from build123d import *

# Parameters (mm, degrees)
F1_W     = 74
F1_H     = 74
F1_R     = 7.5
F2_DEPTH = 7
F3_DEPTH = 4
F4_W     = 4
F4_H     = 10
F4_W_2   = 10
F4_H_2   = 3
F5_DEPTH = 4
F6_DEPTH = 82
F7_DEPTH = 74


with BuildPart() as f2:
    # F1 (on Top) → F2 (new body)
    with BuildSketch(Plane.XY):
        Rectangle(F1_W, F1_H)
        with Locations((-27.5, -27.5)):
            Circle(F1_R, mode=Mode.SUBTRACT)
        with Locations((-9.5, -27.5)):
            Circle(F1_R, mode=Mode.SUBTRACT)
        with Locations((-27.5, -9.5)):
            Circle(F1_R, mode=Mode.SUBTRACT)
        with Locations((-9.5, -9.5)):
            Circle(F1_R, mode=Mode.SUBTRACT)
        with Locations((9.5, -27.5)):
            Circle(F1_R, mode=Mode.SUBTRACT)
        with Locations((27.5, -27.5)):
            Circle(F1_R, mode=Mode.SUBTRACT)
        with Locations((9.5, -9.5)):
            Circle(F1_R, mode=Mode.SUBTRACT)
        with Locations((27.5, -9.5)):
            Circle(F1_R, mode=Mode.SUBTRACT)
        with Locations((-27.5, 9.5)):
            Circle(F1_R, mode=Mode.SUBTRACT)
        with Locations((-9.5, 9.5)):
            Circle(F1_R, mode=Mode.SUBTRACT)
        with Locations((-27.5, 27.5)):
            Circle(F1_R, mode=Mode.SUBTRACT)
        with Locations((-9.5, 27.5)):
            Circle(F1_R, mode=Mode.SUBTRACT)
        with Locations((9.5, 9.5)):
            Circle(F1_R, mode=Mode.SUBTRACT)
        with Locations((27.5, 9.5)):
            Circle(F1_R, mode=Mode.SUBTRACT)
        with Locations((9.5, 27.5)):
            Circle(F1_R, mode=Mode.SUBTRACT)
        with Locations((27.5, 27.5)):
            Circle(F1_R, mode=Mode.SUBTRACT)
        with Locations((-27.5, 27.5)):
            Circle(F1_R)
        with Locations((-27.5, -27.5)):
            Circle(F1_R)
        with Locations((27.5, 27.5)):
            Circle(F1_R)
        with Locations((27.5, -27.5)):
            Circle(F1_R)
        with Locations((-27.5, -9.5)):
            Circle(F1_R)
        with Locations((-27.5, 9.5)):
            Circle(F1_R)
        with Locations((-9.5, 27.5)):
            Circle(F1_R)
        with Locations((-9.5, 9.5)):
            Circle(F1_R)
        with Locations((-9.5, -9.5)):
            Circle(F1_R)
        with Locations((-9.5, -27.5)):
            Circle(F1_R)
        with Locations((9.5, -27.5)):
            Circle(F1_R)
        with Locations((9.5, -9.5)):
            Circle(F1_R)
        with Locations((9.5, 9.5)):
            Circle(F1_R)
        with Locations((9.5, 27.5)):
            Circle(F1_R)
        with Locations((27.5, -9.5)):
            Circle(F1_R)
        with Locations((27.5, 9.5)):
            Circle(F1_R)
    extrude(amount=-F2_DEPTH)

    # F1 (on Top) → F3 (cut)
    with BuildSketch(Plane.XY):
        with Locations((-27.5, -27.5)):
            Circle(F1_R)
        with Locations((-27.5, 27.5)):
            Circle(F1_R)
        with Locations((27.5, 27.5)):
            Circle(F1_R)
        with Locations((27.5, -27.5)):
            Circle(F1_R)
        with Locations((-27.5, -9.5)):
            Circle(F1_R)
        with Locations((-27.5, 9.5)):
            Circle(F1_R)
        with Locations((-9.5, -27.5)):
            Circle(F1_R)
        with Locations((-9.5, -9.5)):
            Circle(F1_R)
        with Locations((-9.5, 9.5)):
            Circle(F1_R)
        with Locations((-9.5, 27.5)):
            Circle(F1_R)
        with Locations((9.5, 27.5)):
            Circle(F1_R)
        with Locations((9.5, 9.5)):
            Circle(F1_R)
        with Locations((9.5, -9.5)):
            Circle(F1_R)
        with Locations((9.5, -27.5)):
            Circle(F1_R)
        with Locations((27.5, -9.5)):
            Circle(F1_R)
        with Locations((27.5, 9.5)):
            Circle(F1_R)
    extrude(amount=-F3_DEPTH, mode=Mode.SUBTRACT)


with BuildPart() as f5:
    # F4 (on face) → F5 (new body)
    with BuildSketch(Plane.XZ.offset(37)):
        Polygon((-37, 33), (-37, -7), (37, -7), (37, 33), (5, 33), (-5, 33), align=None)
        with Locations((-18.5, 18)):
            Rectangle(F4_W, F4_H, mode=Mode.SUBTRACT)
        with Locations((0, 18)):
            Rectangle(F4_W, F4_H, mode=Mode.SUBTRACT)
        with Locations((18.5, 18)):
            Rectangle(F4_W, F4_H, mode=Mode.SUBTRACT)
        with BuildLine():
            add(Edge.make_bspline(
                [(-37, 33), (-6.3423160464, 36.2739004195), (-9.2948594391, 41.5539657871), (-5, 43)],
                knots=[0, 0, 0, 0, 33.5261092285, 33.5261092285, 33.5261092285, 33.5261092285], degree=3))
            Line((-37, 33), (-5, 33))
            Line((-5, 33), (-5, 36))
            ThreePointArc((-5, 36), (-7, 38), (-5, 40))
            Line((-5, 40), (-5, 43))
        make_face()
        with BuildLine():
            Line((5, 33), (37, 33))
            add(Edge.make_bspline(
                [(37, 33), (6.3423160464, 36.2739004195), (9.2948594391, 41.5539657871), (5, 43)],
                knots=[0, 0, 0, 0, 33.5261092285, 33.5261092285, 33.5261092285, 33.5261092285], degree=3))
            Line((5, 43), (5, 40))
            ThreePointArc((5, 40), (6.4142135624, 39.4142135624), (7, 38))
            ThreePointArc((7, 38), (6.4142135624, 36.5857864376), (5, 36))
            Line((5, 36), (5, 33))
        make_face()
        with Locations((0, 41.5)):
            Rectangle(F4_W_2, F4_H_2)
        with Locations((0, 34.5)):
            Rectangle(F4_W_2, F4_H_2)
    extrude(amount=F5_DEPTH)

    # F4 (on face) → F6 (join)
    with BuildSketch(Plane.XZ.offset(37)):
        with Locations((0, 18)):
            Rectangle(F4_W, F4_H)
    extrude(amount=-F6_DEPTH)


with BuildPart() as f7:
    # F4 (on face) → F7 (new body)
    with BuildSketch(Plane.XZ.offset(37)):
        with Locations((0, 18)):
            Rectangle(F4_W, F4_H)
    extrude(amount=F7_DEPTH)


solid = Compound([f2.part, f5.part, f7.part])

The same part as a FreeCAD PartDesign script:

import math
import FreeCAD as App
import Part
import Sketcher
from FreeCAD import Vector
Q = App.Units.Quantity


def add_polygon(sketch, points):
    """Adds a closed chain of lines whose ends are joined by coincident constraints."""
    first, n = sketch.GeometryCount, len(points)
    for a, b in zip(points, points[1:] + points[:1]):
        sketch.addGeometry(Part.LineSegment(App.Vector(*a, 0), App.Vector(*b, 0)), False)
    for i in range(n):
        sketch.addConstraint(Sketcher.Constraint("Coincident", first + i, 2, first + (i + 1) % n, 1))

doc = App.newDocument("Part")
body = doc.addObject("PartDesign::Body", "Body")

sketch1 = body.newObject("Sketcher::SketchObject", "Sketch")
sketch1.AttachmentSupport = (doc.getObject("XY_Plane"), [""])
sketch1.MapMode = "FlatFace"
add_polygon(sketch1, [(-37, 37), (-37, -37), (37, -37), (37, 37)])
sketch1.addConstraint([
    Sketcher.Constraint("Vertical", 0),
    Sketcher.Constraint("Horizontal", 1),
    Sketcher.Constraint("Vertical", 2),
    Sketcher.Constraint("Horizontal", 3),
    Sketcher.Constraint("Symmetric", 0, 2, 2, 2, -1, 1),
    Sketcher.Constraint("Equal", 3, 0),
    Sketcher.Constraint("DistanceX", 1, 1, 1, 2, Q("74 mm")),
])
pad1 = body.newObject("PartDesign::Pad", "Pad")
pad1.Profile = sketch1
pad1.Length = 7
pad1.Reversed = True

sketch2 = body.newObject("Sketcher::SketchObject", "Sketch001")
sketch2.AttachmentSupport = (doc.getObject("XY_Plane"), [""])
sketch2.MapMode = "FlatFace"
sketch2.addGeometry([
    Part.Circle(Vector(-28, -28, 0), Vector(0, 0, 1), 8),
    Part.Circle(Vector(-28, 28, 0), Vector(0, 0, 1), 8),
    Part.Circle(Vector(28, 28, 0), Vector(0, 0, 1), 8),
    Part.Circle(Vector(28, -28, 0), Vector(0, 0, 1), 8),
    Part.Circle(Vector(-28, -10, 0), Vector(0, 0, 1), 8),
    Part.Circle(Vector(-28, 10, 0), Vector(0, 0, 1), 8),
    Part.Circle(Vector(-10, -28, 0), Vector(0, 0, 1), 8),
    Part.Circle(Vector(-10, -10, 0), Vector(0, 0, 1), 8),
    Part.Circle(Vector(-10, 10, 0), Vector(0, 0, 1), 8),
    Part.Circle(Vector(-10, 28, 0), Vector(0, 0, 1), 8),
    Part.Circle(Vector(10, 28, 0), Vector(0, 0, 1), 8),
    Part.Circle(Vector(10, 10, 0), Vector(0, 0, 1), 8),
    Part.Circle(Vector(10, -10, 0), Vector(0, 0, 1), 8),
    Part.Circle(Vector(10, -28, 0), Vector(0, 0, 1), 8),
    Part.Circle(Vector(28, -10, 0), Vector(0, 0, 1), 8),
    Part.Circle(Vector(28, 10, 0), Vector(0, 0, 1), 8),
], False)
sketch2.addConstraint([
    Sketcher.Constraint("Equal", 0, 1),
    Sketcher.Constraint("Equal", 1, 2),
    Sketcher.Constraint("Equal", 2, 3),
    Sketcher.Constraint("Equal", 3, 4),
    Sketcher.Constraint("Equal", 4, 5),
    Sketcher.Constraint("Equal", 5, 6),
    Sketcher.Constraint("Equal", 6, 7),
    Sketcher.Constraint("Equal", 7, 8),
    Sketcher.Constraint("Equal", 8, 9),
    Sketcher.Constraint("Equal", 9, 10),
    Sketcher.Constraint("Equal", 10, 11),
    Sketcher.Constraint("Equal", 11, 12),
    Sketcher.Constraint("Equal", 12, 13),
    Sketcher.Constraint("Equal", 13, 14),
    Sketcher.Constraint("Equal", 14, 15),
    Sketcher.Constraint("Symmetric", 0, 3, 2, 3, -1, 1),
    Sketcher.Constraint("Symmetric", 1, 3, 3, 3, -1, 1),
    Sketcher.Constraint("Symmetric", 6, 3, 10, 3, -1, 1),
    Sketcher.Constraint("Symmetric", 7, 3, 11, 3, -1, 1),
    Sketcher.Constraint("Symmetric", 8, 3, 12, 3, -1, 1),
    Sketcher.Constraint("Symmetric", 9, 3, 13, 3, -1, 1),
    Sketcher.Constraint("Symmetric", 5, 3, 14, 3, -1, 1),
    Sketcher.Constraint("Symmetric", 4, 3, 15, 3, -1, 1),
    Sketcher.Constraint("Symmetric", 1, 3, 2, 3, -2),
    Sketcher.Constraint("Symmetric", 9, 3, 10, 3, -2),
    Sketcher.Constraint("Symmetric", 8, 3, 11, 3, -2),
    Sketcher.Constraint("Symmetric", 4, 3, 14, 3, -2),
    Sketcher.Constraint("Horizontal", 3, 3, 6, 3),
    Sketcher.Constraint("Horizontal", 4, 3, 7, 3),
    Sketcher.Constraint("Vertical", 1, 3, 4, 3),
    Sketcher.Constraint("Vertical", 6, 3, 7, 3),
    Sketcher.Constraint("Diameter", 0, Q("15 mm")),
    Sketcher.Constraint("DistanceY", 0, 3, 1, 3, Q("55 mm")),
    Sketcher.Constraint("DistanceX", 1, 3, 2, 3, Q("55 mm")),
    Sketcher.Constraint("DistanceY", 0, 3, 4, 3, Q("18 mm")),
    Sketcher.Constraint("DistanceX", 0, 3, 6, 3, Q("18 mm")),
])
pocket1 = body.newObject("PartDesign::Pocket", "Pocket")
pocket1.Profile = sketch2
pocket1.Length = 4
body2 = doc.addObject("PartDesign::Body", "Body001")
body2.AllowCompound = True

sketch3 = body2.newObject("Sketcher::SketchObject", "Sketch002")
sketch3.AttachmentSupport = (doc.getObject("XZ_Plane001"), [""])
sketch3.MapMode = "FlatFace"
sketch3.AttachmentOffset = App.Placement(Vector(0, 0, 37), App.Rotation())
sketch3.addGeometry(Part.LineSegment(Vector(-37, 33, 0), Vector(-37, -7, 0)), False)
sketch3.addGeometry(Part.LineSegment(Vector(-37, -7, 0), Vector(37, -7, 0)), False)
sketch3.addGeometry(Part.LineSegment(Vector(37, -7, 0), Vector(37, 33, 0)), False)
sketch3.addGeometry(Part.BSplineCurve([Vector(37, 33, 0), Vector(6.342316, 36.2739, 0), Vector(9.294859, 41.553966, 0), Vector(5, 43, 0)], [4, 4], [0, 33.526109228], False, 3, [1, 1, 1, 1], False), False)
sketch3.addGeometry(Part.LineSegment(Vector(5, 43, 0), Vector(-5, 43, 0)), False)
sketch3.addGeometry(Part.BSplineCurve([Vector(-37, 33, 0), Vector(-6.342316, 36.2739, 0), Vector(-9.294859, 41.553966, 0), Vector(-5, 43, 0)], [4, 4], [0, 33.526109228], False, 3, [1, 1, 1, 1], False), False)
sketch3.addGeometry(Part.ArcOfCircle(Part.Circle(Vector(5, 38, 0), Vector(0, 0, 1), 2), math.radians(0), math.radians(90)), False)
sketch3.addGeometry(Part.ArcOfCircle(Part.Circle(Vector(5, 38, 0), Vector(0, 0, 1), 2), math.radians(-90), math.radians(0)), False)
sketch3.addGeometry(Part.LineSegment(Vector(5, 36, 0), Vector(-5, 36, 0)), False)
sketch3.addGeometry(Part.ArcOfCircle(Part.Circle(Vector(-5, 38, 0), Vector(0, 0, 1), 2), math.radians(90), math.radians(270)), False)
sketch3.addGeometry(Part.LineSegment(Vector(-5, 40, 0), Vector(5, 40, 0)), False)
add_polygon(sketch3, [(-16.5, 13), (-20.5, 13), (-20.5, 23), (-16.5, 23)])
add_polygon(sketch3, [(2, 13), (-2, 13), (-2, 23), (2, 23)])
add_polygon(sketch3, [(20.5, 13), (16.5, 13), (16.5, 23), (20.5, 23)])
sketch3.addConstraint([
    Sketcher.Constraint("Block", 3),
    Sketcher.Constraint("Block", 5),
    Sketcher.Constraint("Coincident", 0, 2, 1, 1),
    Sketcher.Constraint("Coincident", 1, 2, 2, 1),
    Sketcher.Constraint("Coincident", 2, 2, 3, 1),
    Sketcher.Constraint("Coincident", 3, 2, 4, 1),
    Sketcher.Constraint("Coincident", 4, 2, 5, 2),
    Sketcher.Constraint("Coincident", 5, 1, 0, 1),
    Sketcher.Constraint("Tangent", 6, 1, 7, 2),
    Sketcher.Constraint("Tangent", 7, 1, 8, 1),
    Sketcher.Constraint("Tangent", 8, 2, 9, 2),
    Sketcher.Constraint("Tangent", 9, 1, 10, 1),
    Sketcher.Constraint("Tangent", 10, 2, 6, 2),
    Sketcher.Constraint("Vertical", 0),
    Sketcher.Constraint("Horizontal", 1),
    Sketcher.Constraint("Vertical", 2),
    Sketcher.Constraint("Horizontal", 8),
    Sketcher.Constraint("Horizontal", 10),
    Sketcher.Constraint("Horizontal", 11),
    Sketcher.Constraint("Vertical", 12),
    Sketcher.Constraint("Horizontal", 13),
    Sketcher.Constraint("Vertical", 14),
    Sketcher.Constraint("Horizontal", 15),
    Sketcher.Constraint("Vertical", 16),
    Sketcher.Constraint("Horizontal", 17),
    Sketcher.Constraint("Vertical", 18),
    Sketcher.Constraint("Horizontal", 19),
    Sketcher.Constraint("Vertical", 20),
    Sketcher.Constraint("Horizontal", 21),
    Sketcher.Constraint("Vertical", 22),
    Sketcher.Constraint("Equal", 6, 7),
    Sketcher.Constraint("Symmetric", 14, 2, 19, 2, -2),
    Sketcher.Constraint("Symmetric", 12, 2, 21, 2, -2),
    Sketcher.Constraint("Horizontal", 9, 3, 6, 1),
    Sketcher.Constraint("Horizontal", 14, 2, 15, 2),
    Sketcher.Constraint("Horizontal", 13, 2, 16, 2),
    Sketcher.Constraint("Vertical", 9, 3, 4, 2),
    Sketcher.Constraint("Equal", 4, 8),
    Sketcher.Constraint("Equal", 13, 15),
    Sketcher.Constraint("Equal", 10, 12),
    Sketcher.Constraint("Radius", 6, Q("2 mm")),
    Sketcher.Constraint("DistanceX", 11, 2, 11, 1, Q("4 mm")),
    Sketcher.Constraint("DistanceY", 0, 2, 0, 1, Q("40 mm")),
    Sketcher.Constraint("DistanceY", -1, 1, 6, 3, Q("38 mm")),
    Sketcher.Constraint("DistanceY", -1, 1, 11, 2, Q("13 mm")),
    Sketcher.Constraint("DistanceX", 15, 2, -1, 1, Q("2 mm")),
    Sketcher.Constraint("DistanceX", 11, 2, -1, 1, Q("20.5 mm")),
])
pad2 = body2.newObject("PartDesign::Pad", "Pad001")
pad2.Profile = sketch3
pad2.Length = 4

sketch4 = body2.newObject("Sketcher::SketchObject", "Sketch003")
sketch4.AttachmentSupport = (doc.getObject("XZ_Plane001"), [""])
sketch4.MapMode = "FlatFace"
sketch4.AttachmentOffset = App.Placement(Vector(0, 0, 37), App.Rotation())
add_polygon(sketch4, [(-2, 23), (-2, 13), (2, 13), (2, 23)])
sketch4.addConstraint([
    Sketcher.Constraint("Vertical", 0),
    Sketcher.Constraint("Horizontal", 1),
    Sketcher.Constraint("Vertical", 2),
    Sketcher.Constraint("Horizontal", 3),
    Sketcher.Constraint("DistanceX", 1, 1, 1, 2, Q("4 mm")),
    Sketcher.Constraint("DistanceY", 0, 2, 0, 1, Q("10 mm")),
    Sketcher.Constraint("DistanceX", 0, 2, -1, 1, Q("2 mm")),
    Sketcher.Constraint("DistanceY", -1, 1, 0, 2, Q("13 mm")),
])
pad3 = body2.newObject("PartDesign::Pad", "Pad002")
pad3.Profile = sketch4
pad3.Length = 82
pad3.Reversed = True
body3 = doc.addObject("PartDesign::Body", "Body002")

sketch5 = body3.newObject("Sketcher::SketchObject", "Sketch004")
sketch5.AttachmentSupport = (doc.getObject("XZ_Plane002"), [""])
sketch5.MapMode = "FlatFace"
sketch5.AttachmentOffset = App.Placement(Vector(0, 0, 37), App.Rotation())
add_polygon(sketch5, [(-2, 23), (-2, 13), (2, 13), (2, 23)])
sketch5.addConstraint([
    Sketcher.Constraint("Vertical", 0),
    Sketcher.Constraint("Horizontal", 1),
    Sketcher.Constraint("Vertical", 2),
    Sketcher.Constraint("Horizontal", 3),
    Sketcher.Constraint("DistanceX", 1, 1, 1, 2, Q("4 mm")),
    Sketcher.Constraint("DistanceY", 0, 2, 0, 1, Q("10 mm")),
    Sketcher.Constraint("DistanceX", 0, 2, -1, 1, Q("2 mm")),
    Sketcher.Constraint("DistanceY", -1, 1, 0, 2, Q("13 mm")),
])
pad4 = body3.newObject("PartDesign::Pad", "Pad003")
pad4.Profile = sketch5
pad4.Length = 74

doc.recompute()
